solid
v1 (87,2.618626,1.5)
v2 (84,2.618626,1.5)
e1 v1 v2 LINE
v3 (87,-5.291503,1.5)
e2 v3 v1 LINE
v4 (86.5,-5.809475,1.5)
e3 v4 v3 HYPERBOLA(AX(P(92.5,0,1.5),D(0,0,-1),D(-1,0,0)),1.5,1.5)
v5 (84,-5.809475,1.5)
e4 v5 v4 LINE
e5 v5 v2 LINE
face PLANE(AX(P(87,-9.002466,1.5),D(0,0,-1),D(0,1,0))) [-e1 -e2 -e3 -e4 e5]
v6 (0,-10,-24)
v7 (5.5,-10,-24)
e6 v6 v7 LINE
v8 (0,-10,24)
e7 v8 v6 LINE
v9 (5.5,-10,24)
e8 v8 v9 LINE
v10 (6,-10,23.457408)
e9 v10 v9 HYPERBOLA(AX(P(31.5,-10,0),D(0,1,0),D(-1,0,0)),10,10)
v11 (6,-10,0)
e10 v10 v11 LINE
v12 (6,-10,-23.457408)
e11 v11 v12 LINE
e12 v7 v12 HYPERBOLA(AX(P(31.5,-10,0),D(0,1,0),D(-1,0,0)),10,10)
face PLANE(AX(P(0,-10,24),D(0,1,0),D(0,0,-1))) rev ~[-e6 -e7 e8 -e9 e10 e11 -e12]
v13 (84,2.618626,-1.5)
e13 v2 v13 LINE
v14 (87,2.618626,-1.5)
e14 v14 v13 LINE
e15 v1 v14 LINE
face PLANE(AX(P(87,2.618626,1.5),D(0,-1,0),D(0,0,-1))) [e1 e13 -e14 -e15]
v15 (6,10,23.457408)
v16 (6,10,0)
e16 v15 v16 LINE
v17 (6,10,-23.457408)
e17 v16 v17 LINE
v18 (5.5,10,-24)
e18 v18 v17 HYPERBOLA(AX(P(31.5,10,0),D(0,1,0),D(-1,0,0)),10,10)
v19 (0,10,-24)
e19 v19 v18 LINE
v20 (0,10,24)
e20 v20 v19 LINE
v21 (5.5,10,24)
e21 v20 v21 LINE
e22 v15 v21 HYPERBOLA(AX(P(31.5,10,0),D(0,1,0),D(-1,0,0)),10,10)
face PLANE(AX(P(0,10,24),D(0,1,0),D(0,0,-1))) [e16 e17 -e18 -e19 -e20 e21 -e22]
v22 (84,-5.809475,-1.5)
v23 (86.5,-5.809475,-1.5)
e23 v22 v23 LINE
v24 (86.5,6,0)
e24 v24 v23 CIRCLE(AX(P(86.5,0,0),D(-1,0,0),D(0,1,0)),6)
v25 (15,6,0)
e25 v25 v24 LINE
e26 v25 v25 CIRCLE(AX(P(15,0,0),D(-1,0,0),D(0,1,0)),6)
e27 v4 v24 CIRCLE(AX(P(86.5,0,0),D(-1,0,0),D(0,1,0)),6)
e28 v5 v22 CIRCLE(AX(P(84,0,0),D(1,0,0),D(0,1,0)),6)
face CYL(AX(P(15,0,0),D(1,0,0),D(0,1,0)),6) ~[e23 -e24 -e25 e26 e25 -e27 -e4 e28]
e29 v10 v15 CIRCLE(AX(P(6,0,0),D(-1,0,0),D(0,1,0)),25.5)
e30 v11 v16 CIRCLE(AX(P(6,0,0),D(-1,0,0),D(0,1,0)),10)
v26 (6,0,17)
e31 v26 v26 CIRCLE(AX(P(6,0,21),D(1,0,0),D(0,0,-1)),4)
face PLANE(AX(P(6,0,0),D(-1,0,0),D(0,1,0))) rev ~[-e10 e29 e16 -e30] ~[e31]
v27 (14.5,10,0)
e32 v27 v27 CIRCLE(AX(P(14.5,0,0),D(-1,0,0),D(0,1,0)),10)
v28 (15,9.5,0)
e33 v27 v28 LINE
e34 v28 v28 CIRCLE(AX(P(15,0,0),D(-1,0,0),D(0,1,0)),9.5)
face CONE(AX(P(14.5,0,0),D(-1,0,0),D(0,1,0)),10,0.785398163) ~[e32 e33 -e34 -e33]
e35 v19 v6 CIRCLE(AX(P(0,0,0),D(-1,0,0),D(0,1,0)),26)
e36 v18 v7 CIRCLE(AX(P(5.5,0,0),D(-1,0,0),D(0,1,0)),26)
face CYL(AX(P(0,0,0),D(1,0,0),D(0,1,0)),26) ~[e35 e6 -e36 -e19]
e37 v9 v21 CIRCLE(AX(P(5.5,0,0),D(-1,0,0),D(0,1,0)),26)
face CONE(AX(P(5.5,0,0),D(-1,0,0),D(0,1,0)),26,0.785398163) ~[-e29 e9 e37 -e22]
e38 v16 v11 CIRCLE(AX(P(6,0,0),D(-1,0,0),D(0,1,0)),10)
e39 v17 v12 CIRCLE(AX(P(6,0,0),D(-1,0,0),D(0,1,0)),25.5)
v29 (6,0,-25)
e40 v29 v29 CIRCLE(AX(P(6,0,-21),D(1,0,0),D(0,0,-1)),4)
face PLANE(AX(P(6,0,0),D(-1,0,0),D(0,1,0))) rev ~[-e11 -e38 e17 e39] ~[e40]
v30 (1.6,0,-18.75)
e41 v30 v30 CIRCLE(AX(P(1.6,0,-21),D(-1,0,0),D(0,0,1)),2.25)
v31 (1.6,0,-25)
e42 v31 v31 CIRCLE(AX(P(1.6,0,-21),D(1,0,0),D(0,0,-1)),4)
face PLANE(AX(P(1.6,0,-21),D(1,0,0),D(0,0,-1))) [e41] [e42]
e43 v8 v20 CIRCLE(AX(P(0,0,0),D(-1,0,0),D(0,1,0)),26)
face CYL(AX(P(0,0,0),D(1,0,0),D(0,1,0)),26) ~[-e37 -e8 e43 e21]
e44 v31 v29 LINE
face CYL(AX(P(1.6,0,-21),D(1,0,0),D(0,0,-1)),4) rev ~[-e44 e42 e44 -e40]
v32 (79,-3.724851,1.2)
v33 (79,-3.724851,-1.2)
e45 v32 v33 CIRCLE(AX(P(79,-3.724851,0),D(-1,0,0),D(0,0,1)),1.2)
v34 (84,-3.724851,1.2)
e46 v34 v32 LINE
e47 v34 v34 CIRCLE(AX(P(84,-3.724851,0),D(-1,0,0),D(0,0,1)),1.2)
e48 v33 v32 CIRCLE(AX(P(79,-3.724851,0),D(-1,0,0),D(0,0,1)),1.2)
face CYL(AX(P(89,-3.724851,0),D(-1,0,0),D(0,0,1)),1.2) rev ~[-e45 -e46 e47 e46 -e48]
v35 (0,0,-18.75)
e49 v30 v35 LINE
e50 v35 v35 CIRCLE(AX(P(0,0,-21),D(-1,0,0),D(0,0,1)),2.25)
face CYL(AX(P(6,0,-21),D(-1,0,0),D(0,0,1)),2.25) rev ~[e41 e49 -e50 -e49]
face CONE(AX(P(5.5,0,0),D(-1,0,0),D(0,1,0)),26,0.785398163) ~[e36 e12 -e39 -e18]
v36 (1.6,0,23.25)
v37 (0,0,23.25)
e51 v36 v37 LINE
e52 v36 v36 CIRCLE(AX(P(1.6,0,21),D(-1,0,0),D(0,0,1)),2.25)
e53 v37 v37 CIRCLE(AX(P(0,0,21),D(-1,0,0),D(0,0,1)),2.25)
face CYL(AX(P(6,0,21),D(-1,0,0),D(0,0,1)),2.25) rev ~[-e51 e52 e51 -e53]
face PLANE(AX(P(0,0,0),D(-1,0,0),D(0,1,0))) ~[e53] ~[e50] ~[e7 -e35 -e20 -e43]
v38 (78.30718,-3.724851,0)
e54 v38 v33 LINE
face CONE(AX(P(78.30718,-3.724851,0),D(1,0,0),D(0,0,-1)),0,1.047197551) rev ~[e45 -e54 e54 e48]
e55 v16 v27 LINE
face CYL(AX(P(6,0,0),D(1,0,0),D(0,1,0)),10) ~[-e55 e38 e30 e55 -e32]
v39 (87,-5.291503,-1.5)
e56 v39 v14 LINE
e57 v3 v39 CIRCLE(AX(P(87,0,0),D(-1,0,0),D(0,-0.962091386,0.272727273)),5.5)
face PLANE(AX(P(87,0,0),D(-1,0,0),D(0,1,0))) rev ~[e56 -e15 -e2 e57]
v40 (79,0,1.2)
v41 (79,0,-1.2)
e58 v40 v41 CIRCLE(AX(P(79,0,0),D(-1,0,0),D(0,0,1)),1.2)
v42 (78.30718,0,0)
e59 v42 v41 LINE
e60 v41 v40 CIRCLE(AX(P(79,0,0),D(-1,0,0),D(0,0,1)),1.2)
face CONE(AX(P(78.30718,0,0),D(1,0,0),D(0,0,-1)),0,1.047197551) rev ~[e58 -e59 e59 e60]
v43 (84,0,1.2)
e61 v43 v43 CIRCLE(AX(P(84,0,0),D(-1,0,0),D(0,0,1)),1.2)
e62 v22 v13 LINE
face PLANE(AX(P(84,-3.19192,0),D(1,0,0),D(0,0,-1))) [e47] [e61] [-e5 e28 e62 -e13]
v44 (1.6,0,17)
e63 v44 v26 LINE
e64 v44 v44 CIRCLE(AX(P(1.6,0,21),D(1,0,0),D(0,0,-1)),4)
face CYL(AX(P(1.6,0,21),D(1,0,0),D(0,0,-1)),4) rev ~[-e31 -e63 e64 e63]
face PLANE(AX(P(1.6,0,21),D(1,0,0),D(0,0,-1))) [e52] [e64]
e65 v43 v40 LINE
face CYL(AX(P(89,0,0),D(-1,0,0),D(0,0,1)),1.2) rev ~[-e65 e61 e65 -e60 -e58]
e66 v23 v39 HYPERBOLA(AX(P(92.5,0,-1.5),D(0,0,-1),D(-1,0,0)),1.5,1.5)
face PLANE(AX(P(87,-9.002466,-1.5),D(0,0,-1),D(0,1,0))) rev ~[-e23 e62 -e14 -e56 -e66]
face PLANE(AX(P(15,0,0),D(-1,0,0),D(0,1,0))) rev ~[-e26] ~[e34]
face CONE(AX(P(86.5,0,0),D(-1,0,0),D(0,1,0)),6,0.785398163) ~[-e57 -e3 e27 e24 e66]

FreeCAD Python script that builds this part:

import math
import FreeCAD as App
import Part
import Sketcher


def edges_at(feature, points):
    """Names of the edges that pass closest to the given points."""
    edges = feature.Shape.Edges
    near = lambda p: min(range(len(edges)), key=lambda i: edges[i].distToShape(Part.Vertex(*p))[0])
    return sorted({f"Edge{near(p) + 1}" for p in points})

doc = App.newDocument("Part")
body = doc.addObject("PartDesign::Body", "Body")

# Sketch on XY plane
sketch1 = body.newObject("Sketcher::SketchObject", "Sketch")
sketch1.AttachmentSupport = (doc.getObject("XY_Plane"), [""])
sketch1.MapMode = "FlatFace"
sketch1.addGeometry(Part.LineSegment(App.Vector(87, 6, 0), App.Vector(15, 6, 0)), False)
sketch1.addGeometry(Part.LineSegment(App.Vector(15, 6, 0), App.Vector(15, 10, 0)), False)
sketch1.addGeometry(Part.LineSegment(App.Vector(15, 10, 0), App.Vector(6, 10, 0)), False)
sketch1.addGeometry(Part.LineSegment(App.Vector(6, 10, 0), App.Vector(6, 26, 0)), False)
sketch1.addGeometry(Part.LineSegment(App.Vector(6, 26, 0), App.Vector(0, 26, 0)), False)
sketch1.addGeometry(Part.LineSegment(App.Vector(0, 26, 0), App.Vector(0, 0, 0)), False)
sketch1.addGeometry(Part.LineSegment(App.Vector(0, 0, 0), App.Vector(87, 0, 0)), False)
sketch1.addGeometry(Part.LineSegment(App.Vector(87, 0, 0), App.Vector(87, 6, 0)), False)
sketch1.addConstraint(Sketcher.Constraint("Coincident", 0, 2, 1, 1))
sketch1.addConstraint(Sketcher.Constraint("Coincident", 1, 2, 2, 1))
sketch1.addConstraint(Sketcher.Constraint("Coincident", 2, 2, 3, 1))
sketch1.addConstraint(Sketcher.Constraint("Coincident", 3, 2, 4, 1))
sketch1.addConstraint(Sketcher.Constraint("Coincident", 4, 2, 5, 1))
sketch1.addConstraint(Sketcher.Constraint("Coincident", 5, 2, 6, 1))
sketch1.addConstraint(Sketcher.Constraint("Coincident", 6, 2, 7, 1))
sketch1.addConstraint(Sketcher.Constraint("Coincident", 7, 2, 0, 1))
sketch1.addConstraint(Sketcher.Constraint("Horizontal", 0))
sketch1.addConstraint(Sketcher.Constraint("Vertical", 1))
sketch1.addConstraint(Sketcher.Constraint("Horizontal", 2))
sketch1.addConstraint(Sketcher.Constraint("Vertical", 3))
sketch1.addConstraint(Sketcher.Constraint("Horizontal", 4))
sketch1.addConstraint(Sketcher.Constraint("Vertical", 5))
sketch1.addConstraint(Sketcher.Constraint("Horizontal", 6))
sketch1.addConstraint(Sketcher.Constraint("Vertical", 7))
sketch1.addConstraint(Sketcher.Constraint("Coincident", 5, 2, -1, 1))
sketch1.addConstraint(Sketcher.Constraint("Equal", 4, 7))
sketch1.addConstraint(Sketcher.Constraint("DistanceX", 0, 2, 0, 1, 72.0))
sketch1.addConstraint(Sketcher.Constraint("DistanceX", 2, 2, 2, 1, 9.0))
sketch1.addConstraint(Sketcher.Constraint("DistanceX", 4, 2, 4, 1, 6.0))
sketch1.addConstraint(Sketcher.Constraint("DistanceY", 1, 1, 1, 2, 4.0))
sketch1.addConstraint(Sketcher.Constraint("DistanceY", 3, 1, 3, 2, 16.0))
revolution = body.newObject("PartDesign::Revolution", "Revolution")
revolution.Profile = sketch1
revolution.ReferenceAxis = (sketch1, ["H_Axis"])
revolution.Angle = 360
doc.recompute()

chamfer = body.newObject("PartDesign::Chamfer", "Chamfer")
chamfer.Base = (revolution, edges_at(revolution, [(6, -26, 0), (15, -10, 0)]))
chamfer.Size = 0.5

# Sketch on YZ plane
sketch2 = body.newObject("Sketcher::SketchObject", "Sketch001")
sketch2.AttachmentSupport = (doc.getObject("YZ_Plane"), [""])
sketch2.MapMode = "FlatFace"
sketch2.AttachmentOffset = App.Placement(App.Vector(0, 0, 6), App.Rotation())
sketch2.addGeometry(Part.Circle(App.Vector(0, 21, 0), App.Vector(0, 0, 1), 2.2), False)
sketch2.addGeometry(Part.Circle(App.Vector(0, -21, 0), App.Vector(0, 0, 1), 2.2), False)
sketch2.addConstraint(Sketcher.Constraint("Equal", 0, 1))
sketch2.addConstraint(Sketcher.Constraint("Symmetric", 0, 3, 1, 3, -1, 1))
sketch2.addConstraint(Sketcher.Constraint("PointOnObject", 0, 3, -2))
sketch2.addConstraint(Sketcher.Constraint("Diameter", 0, 4.5))
sketch2.addConstraint(Sketcher.Constraint("DistanceY", -1, 1, 0, 3, 21.0))
doc.recompute()
hole = body.newObject("PartDesign::Hole", "Hole")
hole.Profile = sketch2
hole.ThreadType = "None"
hole.Diameter = 4.5
hole.DepthType = "ThroughAll"
hole.HoleCutType = "Counterbore"
hole.HoleCutDiameter = 8
hole.HoleCutDepth = 4.4

# Sketch on YZ plane
sketch3 = body.newObject("Sketcher::SketchObject", "Sketch002")
sketch3.AttachmentSupport = (doc.getObject("YZ_Plane"), [""])
sketch3.MapMode = "FlatFace"
sketch3.addGeometry(Part.LineSegment(App.Vector(-10, 24, 0), App.Vector(-10, -24, 0)), False)
sketch3.addGeometry(Part.ArcOfCircle(Part.Circle(App.Vector(0, 0, 0), App.Vector(0, 0, 1), 26), math.radians(113), math.radians(247)), False)
sketch3.addGeometry(Part.LineSegment(App.Vector(10, -24, 0), App.Vector(10, 24, 0)), False)
sketch3.addGeometry(Part.ArcOfCircle(Part.Circle(App.Vector(0, 0, 0), App.Vector(0, 0, 1), 26), math.radians(-67), math.radians(67)), False)
sketch3.addConstraint(Sketcher.Constraint("Coincident", 0, 1, 1, 1))
sketch3.addConstraint(Sketcher.Constraint("Coincident", 1, 2, 0, 2))
sketch3.addConstraint(Sketcher.Constraint("Coincident", 2, 1, 3, 1))
sketch3.addConstraint(Sketcher.Constraint("Coincident", 3, 2, 2, 2))
sketch3.addConstraint(Sketcher.Constraint("Vertical", 0))
sketch3.addConstraint(Sketcher.Constraint("Vertical", 2))
sketch3.addConstraint(Sketcher.Constraint("Coincident", 1, 3, -1, 1))
sketch3.addConstraint(Sketcher.Constraint("Coincident", 3, 3, -1, 1))
sketch3.addConstraint(Sketcher.Constraint("Equal", 1, 3))
sketch3.addConstraint(Sketcher.Constraint("Horizontal", 1, 2, 2, 1))
sketch3.addConstraint(Sketcher.Constraint("Radius", 1, 26.0))
sketch3.addConstraint(Sketcher.Constraint("DistanceY", 0, 2, 0, 1, 48.0))
pocket1 = body.newObject("PartDesign::Pocket", "Pocket")
pocket1.Profile = sketch3
pocket1.Type = "ThroughAll"
pocket1.Reversed = True
doc.recompute()

chamfer2 = body.newObject("PartDesign::Chamfer", "Chamfer001")
chamfer2.Base = (pocket1, edges_at(pocket1, [(87, -6, 0)]))
chamfer2.Size = 0.5

# Sketch on YZ plane
sketch4 = body.newObject("Sketcher::SketchObject", "Sketch003")
sketch4.AttachmentSupport = (doc.getObject("YZ_Plane"), [""])
sketch4.MapMode = "FlatFace"
sketch4.AttachmentOffset = App.Placement(App.Vector(0, 0, 87), App.Rotation())
sketch4.addGeometry(Part.LineSegment(App.Vector(2.6, 1.5, 0), App.Vector(-9, 1.5, 0)), False)
sketch4.addGeometry(Part.LineSegment(App.Vector(-9, 1.5, 0), App.Vector(-9, -1.5, 0)), False)
sketch4.addGeometry(Part.LineSegment(App.Vector(-9, -1.5, 0), App.Vector(2.6, -1.5, 0)), False)
sketch4.addGeometry(Part.LineSegment(App.Vector(2.6, -1.5, 0), App.Vector(2.6, 1.5, 0)), False)
sketch4.addConstraint(Sketcher.Constraint("Coincident", 0, 2, 1, 1))
sketch4.addConstraint(Sketcher.Constraint("Coincident", 1, 2, 2, 1))
sketch4.addConstraint(Sketcher.Constraint("Coincident", 2, 2, 3, 1))
sketch4.addConstraint(Sketcher.Constraint("Coincident", 3, 2, 0, 1))
sketch4.addConstraint(Sketcher.Constraint("Horizontal", 0))
sketch4.addConstraint(Sketcher.Constraint("Vertical", 1))
sketch4.addConstraint(Sketcher.Constraint("Horizontal", 2))
sketch4.addConstraint(Sketcher.Constraint("Vertical", 3))
sketch4.addConstraint(Sketcher.Constraint("DistanceY", 1, 2, 1, 1, 3.0))
sketch4.addConstraint(Sketcher.Constraint("DistanceY", -1, 1, 0, 2, 1.5))
sketch4.addConstraint(Sketcher.Constraint("DistanceX", 0, 2, 0, 1, 11.621091))
sketch4.addConstraint(Sketcher.Constraint("DistanceX", 0, 2, -1, 1, 9.002466))
pocket2 = body.newObject("PartDesign::Pocket", "Pocket001")
pocket2.Profile = sketch4
pocket2.Length = 3

# Sketch on YZ plane
sketch5 = body.newObject("Sketcher::SketchObject", "Sketch004")
sketch5.AttachmentSupport = (doc.getObject("YZ_Plane"), [""])
sketch5.MapMode = "FlatFace"
sketch5.AttachmentOffset = App.Placement(App.Vector(0, 0, 84), App.Rotation())
sketch5.addGeometry(Part.Circle(App.Vector(0, 0, 0), App.Vector(0, 0, 1), 1.2), False)
sketch5.addGeometry(Part.Circle(App.Vector(-3.7, 0, 0), App.Vector(0, 0, 1), 1.2), False)
sketch5.addConstraint(Sketcher.Constraint("Coincident", 0, 3, -1, 1))
sketch5.addConstraint(Sketcher.Constraint("Equal", 0, 1))
sketch5.addConstraint(Sketcher.Constraint("PointOnObject", 1, 3, -1))
sketch5.addConstraint(Sketcher.Constraint("Diameter", 0, 2.4))
sketch5.addConstraint(Sketcher.Constraint("DistanceX", 1, 3, -1, 1, 3.724851))
doc.recompute()
hole2 = body.newObject("PartDesign::Hole", "Hole001")
hole2.Profile = sketch5
hole2.ThreadType = "None"
hole2.Diameter = 2.4
hole2.DepthType = "Dimension"
hole2.Depth = 5
hole2.DrillPoint = "Angled"
hole2.DrillPointAngle = 120

doc.recompute()
